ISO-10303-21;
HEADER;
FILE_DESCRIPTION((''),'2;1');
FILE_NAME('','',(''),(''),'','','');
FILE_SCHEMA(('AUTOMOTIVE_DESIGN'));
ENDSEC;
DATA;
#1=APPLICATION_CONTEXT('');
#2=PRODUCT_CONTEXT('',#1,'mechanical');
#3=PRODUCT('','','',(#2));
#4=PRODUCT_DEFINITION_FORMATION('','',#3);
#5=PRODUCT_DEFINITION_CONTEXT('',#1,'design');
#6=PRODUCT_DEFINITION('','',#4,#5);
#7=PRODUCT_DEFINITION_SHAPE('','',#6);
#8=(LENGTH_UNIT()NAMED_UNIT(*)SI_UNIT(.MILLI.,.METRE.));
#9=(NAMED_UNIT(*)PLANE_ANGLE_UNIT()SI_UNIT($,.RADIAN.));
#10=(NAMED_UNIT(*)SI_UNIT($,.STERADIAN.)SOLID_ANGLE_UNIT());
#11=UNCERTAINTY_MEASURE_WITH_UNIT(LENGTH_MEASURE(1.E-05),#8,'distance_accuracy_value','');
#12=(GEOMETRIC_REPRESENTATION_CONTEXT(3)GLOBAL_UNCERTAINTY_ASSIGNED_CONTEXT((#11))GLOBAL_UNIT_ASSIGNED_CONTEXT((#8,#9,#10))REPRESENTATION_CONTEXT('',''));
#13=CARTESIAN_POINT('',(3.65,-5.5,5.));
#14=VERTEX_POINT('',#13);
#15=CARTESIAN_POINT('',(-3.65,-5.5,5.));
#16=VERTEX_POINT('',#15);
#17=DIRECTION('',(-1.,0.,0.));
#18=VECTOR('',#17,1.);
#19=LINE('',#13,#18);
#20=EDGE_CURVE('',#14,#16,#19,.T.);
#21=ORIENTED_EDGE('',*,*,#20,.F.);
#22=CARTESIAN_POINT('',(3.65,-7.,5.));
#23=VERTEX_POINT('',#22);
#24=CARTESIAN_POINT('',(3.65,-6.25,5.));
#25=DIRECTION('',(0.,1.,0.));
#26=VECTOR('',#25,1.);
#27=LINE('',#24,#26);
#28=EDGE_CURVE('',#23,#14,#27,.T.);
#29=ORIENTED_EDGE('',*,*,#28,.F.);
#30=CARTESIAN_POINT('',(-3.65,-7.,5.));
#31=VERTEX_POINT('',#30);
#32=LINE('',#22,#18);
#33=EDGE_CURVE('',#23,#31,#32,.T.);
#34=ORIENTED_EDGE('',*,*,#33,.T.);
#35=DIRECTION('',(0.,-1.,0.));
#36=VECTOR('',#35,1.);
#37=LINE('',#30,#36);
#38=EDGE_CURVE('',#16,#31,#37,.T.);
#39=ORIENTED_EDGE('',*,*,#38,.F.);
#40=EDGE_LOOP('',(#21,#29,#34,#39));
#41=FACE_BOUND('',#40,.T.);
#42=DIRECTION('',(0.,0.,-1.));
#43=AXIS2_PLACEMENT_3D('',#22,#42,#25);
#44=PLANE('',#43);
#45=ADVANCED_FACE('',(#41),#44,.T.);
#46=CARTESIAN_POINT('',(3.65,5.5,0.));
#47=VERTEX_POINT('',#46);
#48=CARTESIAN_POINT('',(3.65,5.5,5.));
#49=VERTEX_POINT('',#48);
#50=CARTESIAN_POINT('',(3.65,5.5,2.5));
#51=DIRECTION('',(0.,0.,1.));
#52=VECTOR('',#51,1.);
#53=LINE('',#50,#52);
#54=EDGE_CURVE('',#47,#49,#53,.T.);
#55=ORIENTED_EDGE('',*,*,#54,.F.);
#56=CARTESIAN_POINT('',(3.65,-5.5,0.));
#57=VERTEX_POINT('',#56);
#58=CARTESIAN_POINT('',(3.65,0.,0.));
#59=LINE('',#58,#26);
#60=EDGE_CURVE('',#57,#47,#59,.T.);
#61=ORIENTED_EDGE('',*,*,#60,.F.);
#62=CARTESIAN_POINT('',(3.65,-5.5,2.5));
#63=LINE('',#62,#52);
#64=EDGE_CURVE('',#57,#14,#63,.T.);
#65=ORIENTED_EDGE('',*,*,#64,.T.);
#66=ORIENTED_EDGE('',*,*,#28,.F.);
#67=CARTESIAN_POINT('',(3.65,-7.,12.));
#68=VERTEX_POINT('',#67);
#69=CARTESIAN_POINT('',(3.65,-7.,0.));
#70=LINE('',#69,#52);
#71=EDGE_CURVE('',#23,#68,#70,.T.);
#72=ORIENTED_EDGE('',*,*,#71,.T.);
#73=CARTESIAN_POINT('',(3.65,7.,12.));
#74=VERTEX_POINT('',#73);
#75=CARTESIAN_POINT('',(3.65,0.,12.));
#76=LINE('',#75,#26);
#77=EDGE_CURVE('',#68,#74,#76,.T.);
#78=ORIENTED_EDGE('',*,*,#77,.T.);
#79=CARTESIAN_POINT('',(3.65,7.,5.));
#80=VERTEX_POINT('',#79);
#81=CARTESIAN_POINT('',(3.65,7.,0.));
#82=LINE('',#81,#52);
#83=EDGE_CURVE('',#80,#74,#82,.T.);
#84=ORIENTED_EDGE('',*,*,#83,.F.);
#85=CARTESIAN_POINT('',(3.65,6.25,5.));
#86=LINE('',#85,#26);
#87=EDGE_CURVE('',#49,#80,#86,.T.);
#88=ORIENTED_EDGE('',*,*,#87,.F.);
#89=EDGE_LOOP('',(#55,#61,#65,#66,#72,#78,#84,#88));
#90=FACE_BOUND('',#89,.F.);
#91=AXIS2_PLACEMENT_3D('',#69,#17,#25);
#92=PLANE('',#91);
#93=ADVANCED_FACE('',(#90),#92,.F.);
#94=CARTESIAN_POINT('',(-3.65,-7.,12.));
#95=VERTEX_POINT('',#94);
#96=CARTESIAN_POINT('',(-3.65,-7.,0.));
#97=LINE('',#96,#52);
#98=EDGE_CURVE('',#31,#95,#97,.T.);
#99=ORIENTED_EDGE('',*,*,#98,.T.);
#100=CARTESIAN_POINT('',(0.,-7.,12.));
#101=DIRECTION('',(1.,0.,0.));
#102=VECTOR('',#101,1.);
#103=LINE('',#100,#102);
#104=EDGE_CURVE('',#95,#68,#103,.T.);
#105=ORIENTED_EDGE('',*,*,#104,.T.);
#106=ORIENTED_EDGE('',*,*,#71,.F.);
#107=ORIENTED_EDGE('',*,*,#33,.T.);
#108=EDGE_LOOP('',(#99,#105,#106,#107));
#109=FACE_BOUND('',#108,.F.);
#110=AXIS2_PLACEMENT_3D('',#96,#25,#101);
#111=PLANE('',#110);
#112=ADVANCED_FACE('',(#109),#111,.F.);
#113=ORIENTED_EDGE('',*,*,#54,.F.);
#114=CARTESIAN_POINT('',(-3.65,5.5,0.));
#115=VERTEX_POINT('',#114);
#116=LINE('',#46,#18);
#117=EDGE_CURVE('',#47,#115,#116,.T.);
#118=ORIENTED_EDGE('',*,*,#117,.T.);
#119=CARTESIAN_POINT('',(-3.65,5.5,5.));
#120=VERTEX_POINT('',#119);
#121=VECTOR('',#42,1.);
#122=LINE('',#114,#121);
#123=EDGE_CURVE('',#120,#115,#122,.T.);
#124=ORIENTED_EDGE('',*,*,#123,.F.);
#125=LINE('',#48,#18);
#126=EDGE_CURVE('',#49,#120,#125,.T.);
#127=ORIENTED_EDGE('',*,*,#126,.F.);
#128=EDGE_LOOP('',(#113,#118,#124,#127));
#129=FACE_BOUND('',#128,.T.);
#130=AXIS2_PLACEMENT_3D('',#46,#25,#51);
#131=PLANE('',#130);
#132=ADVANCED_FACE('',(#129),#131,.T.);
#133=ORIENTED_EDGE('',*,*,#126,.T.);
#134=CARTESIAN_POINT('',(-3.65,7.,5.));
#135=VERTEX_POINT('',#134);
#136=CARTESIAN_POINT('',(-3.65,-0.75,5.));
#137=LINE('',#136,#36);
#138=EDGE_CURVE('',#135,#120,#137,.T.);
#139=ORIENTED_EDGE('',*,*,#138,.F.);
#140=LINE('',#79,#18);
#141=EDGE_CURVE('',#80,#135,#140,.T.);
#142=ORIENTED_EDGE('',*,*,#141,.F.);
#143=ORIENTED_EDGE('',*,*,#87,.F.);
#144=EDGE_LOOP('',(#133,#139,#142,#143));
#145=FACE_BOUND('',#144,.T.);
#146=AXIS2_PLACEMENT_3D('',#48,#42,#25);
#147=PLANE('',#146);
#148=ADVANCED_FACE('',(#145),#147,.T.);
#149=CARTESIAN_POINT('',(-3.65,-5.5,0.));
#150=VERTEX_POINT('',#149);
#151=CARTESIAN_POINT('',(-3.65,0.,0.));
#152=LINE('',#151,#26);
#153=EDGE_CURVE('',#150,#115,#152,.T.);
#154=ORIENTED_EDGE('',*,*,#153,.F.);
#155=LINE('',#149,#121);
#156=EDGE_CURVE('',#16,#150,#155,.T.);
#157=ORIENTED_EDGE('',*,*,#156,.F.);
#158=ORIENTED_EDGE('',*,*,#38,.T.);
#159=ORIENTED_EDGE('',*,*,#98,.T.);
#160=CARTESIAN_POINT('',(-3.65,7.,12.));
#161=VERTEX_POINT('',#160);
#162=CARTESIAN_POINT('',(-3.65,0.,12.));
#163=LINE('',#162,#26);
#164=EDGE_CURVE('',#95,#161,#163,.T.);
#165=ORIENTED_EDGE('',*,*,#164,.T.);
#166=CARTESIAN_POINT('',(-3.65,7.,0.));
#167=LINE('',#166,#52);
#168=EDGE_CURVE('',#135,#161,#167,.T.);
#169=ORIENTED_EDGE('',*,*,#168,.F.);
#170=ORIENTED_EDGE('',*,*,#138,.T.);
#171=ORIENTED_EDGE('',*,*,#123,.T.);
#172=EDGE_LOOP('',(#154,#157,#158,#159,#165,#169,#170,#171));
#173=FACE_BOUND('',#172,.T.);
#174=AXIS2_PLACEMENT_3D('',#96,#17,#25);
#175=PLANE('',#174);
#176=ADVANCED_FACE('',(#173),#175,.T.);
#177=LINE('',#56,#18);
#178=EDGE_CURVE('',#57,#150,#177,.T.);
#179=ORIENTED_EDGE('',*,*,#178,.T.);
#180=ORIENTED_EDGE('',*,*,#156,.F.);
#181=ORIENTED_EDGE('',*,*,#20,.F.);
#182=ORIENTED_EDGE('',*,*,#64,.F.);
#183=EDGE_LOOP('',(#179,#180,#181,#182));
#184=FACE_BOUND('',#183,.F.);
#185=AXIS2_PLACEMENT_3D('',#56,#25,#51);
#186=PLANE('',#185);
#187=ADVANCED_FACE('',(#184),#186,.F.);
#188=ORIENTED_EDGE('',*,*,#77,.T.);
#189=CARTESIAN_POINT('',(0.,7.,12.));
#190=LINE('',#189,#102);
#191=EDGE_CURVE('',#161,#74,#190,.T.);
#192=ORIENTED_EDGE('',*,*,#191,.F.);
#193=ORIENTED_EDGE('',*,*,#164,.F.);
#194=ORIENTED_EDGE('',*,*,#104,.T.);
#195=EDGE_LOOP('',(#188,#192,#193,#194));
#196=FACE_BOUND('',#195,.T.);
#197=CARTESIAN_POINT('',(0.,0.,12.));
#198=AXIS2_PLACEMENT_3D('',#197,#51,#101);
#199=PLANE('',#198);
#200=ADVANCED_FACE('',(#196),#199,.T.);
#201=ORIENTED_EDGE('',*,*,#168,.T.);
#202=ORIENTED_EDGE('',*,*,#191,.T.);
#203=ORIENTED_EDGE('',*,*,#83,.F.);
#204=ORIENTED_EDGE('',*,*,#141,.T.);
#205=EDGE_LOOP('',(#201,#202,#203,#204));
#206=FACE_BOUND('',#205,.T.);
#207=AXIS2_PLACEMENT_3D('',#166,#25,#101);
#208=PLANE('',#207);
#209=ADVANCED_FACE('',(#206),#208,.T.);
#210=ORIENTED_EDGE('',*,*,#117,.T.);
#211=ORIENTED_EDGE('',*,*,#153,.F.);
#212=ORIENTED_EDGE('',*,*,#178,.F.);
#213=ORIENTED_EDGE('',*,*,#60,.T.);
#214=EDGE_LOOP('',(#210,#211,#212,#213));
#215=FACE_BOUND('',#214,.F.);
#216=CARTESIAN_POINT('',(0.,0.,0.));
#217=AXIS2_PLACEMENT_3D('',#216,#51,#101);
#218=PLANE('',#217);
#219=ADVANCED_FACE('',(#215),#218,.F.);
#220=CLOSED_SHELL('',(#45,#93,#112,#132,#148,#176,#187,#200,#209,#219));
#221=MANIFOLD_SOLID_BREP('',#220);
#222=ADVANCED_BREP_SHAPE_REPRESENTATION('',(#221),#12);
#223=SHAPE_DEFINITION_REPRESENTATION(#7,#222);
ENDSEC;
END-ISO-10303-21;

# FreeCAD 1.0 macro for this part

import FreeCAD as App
import Part
import Sketcher
Q = App.Units.Quantity

doc = App.newDocument("Part")
body = doc.addObject("PartDesign::Body", "Body")

# Sketch on XY plane
sketch1 = body.newObject("Sketcher::SketchObject", "Sketch")
sketch1.AttachmentSupport = (doc.getObject("XY_Plane"), [""])
sketch1.MapMode = "FlatFace"
sketch1.addGeometry([
    Part.LineSegment(App.Vector(-4, 7, 0), App.Vector(-4, -7, 0)),
    Part.LineSegment(App.Vector(-4, -7, 0), App.Vector(4, -7, 0)),
    Part.LineSegment(App.Vector(4, -7, 0), App.Vector(4, 7, 0)),
    Part.LineSegment(App.Vector(4, 7, 0), App.Vector(-4, 7, 0)),
], False)
sketch1.addConstraint([
    Sketcher.Constraint("Coincident", 0, 2, 1, 1),
    Sketcher.Constraint("Coincident", 1, 2, 2, 1),
    Sketcher.Constraint("Coincident", 2, 2, 3, 1),
    Sketcher.Constraint("Coincident", 3, 2, 0, 1),
    Sketcher.Constraint("Vertical", 0),
    Sketcher.Constraint("Horizontal", 1),
    Sketcher.Constraint("Vertical", 2),
    Sketcher.Constraint("Horizontal", 3),
    Sketcher.Constraint("Symmetric", 0, 2, 2, 2, -1, 1),
    Sketcher.Constraint("DistanceY", 0, 2, 0, 1, Q("14 mm")),
    Sketcher.Constraint("DistanceX", 1, 1, 1, 2, Q("7.3 mm")),
])
pad1 = body.newObject("PartDesign::Pad", "Pad")
pad1.Profile = sketch1
pad1.Length = 12

# Sketch on YZ plane
sketch2 = body.newObject("Sketcher::SketchObject", "Sketch001")
sketch2.AttachmentSupport = (doc.getObject("YZ_Plane"), [""])
sketch2.MapMode = "FlatFace"
sketch2.AttachmentOffset = App.Placement(App.Vector(0, 0, 3.65), App.Rotation())
sketch2.addGeometry([
    Part.LineSegment(App.Vector(-7, 5, 0), App.Vector(-7, 0, 0)),  # 0
    Part.LineSegment(App.Vector(-7, 0, 0), App.Vector(-5.5, 0, 0)),  # 1
    Part.LineSegment(App.Vector(-5.5, 0, 0), App.Vector(-5.5, 5, 0)),  # 2
    Part.LineSegment(App.Vector(-5.5, 5, 0), App.Vector(-7, 5, 0)),  # 3
    Part.LineSegment(App.Vector(5.5, 5, 0), App.Vector(5.5, 0, 0)),  # 4
    Part.LineSegment(App.Vector(5.5, 0, 0), App.Vector(7, 0, 0)),  # 5
    Part.LineSegment(App.Vector(7, 0, 0), App.Vector(7, 5, 0)),  # 6
    Part.LineSegment(App.Vector(7, 5, 0), App.Vector(5.5, 5, 0)),  # 7
], False)
sketch2.addConstraint([
    Sketcher.Constraint("Coincident", 0, 2, 1, 1),
    Sketcher.Constraint("Coincident", 1, 2, 2, 1),
    Sketcher.Constraint("Coincident", 2, 2, 3, 1),
    Sketcher.Constraint("Coincident", 3, 2, 0, 1),
    Sketcher.Constraint("Coincident", 4, 2, 5, 1),
    Sketcher.Constraint("Coincident", 5, 2, 6, 1),
    Sketcher.Constraint("Coincident", 6, 2, 7, 1),
    Sketcher.Constraint("Coincident", 7, 2, 4, 1),
    Sketcher.Constraint("Vertical", 0),
    Sketcher.Constraint("Horizontal", 1),
    Sketcher.Constraint("Vertical", 2),
    Sketcher.Constraint("Horizontal", 3),
    Sketcher.Constraint("Vertical", 4),
    Sketcher.Constraint("Horizontal", 5),
    Sketcher.Constraint("Vertical", 6),
    Sketcher.Constraint("Horizontal", 7),
    Sketcher.Constraint("Symmetric", 1, 2, 4, 2, -1, 1),
    Sketcher.Constraint("Symmetric", 0, 2, 5, 2, -2),
    Sketcher.Constraint("Horizontal", 3, 2, 6, 2),
    Sketcher.Constraint("DistanceY", 0, 2, 0, 1, Q("5 mm")),
    Sketcher.Constraint("DistanceX", 1, 1, 1, 2, Q("1.5 mm")),
    Sketcher.Constraint("DistanceX", 0, 2, -1, 1, Q("7 mm")),
])
pocket1 = body.newObject("PartDesign::Pocket", "Pocket")
pocket1.Profile = sketch2
pocket1.Length = 25

doc.recompute()
